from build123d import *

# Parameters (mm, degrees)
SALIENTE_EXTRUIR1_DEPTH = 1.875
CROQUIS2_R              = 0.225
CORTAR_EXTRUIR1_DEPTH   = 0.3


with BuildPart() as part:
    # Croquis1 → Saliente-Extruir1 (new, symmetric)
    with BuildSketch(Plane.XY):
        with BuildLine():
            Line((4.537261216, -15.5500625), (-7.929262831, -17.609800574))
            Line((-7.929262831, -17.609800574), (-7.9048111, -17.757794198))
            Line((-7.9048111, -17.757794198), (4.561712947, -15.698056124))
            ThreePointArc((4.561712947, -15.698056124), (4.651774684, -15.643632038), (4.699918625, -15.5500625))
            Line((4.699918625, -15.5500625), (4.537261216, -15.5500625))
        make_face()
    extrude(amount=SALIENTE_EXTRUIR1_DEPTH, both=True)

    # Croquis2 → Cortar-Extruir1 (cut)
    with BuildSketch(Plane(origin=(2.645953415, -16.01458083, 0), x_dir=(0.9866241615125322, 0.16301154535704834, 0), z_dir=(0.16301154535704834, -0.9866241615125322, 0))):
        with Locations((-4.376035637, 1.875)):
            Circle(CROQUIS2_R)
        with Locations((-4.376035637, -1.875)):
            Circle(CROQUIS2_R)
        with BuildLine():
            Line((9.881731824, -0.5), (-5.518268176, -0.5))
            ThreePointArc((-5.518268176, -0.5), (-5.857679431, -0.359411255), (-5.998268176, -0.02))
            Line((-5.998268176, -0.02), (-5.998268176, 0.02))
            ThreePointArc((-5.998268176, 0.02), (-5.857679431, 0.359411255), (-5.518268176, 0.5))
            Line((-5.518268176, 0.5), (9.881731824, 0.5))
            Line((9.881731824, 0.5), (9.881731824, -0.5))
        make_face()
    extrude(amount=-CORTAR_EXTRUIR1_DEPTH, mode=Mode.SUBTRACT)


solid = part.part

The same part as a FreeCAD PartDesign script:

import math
import FreeCAD as App
import Part
import Sketcher

V = App.Vector

doc = App.newDocument("Part")
body = doc.addObject("PartDesign::Body", "Body")

# Sketch on XY plane
sketch1 = body.newObject("Sketcher::SketchObject", "Sketch")
sketch1.AttachmentSupport = (doc.getObject("XY_Plane"), [""])
sketch1.MapMode = "FlatFace"
sketch1.addGeometry(Part.LineSegment(V(4.54, -15.55, 0), V(-7.93, -17.61, 0)), False)
sketch1.addGeometry(Part.LineSegment(V(-7.93, -17.61, 0), V(-7.9, -17.76, 0)), False)
sketch1.addGeometry(Part.LineSegment(V(-7.9, -17.76, 0), V(4.56, -15.7, 0)), False)
sketch1.addGeometry(Part.ArcOfCircle(Part.Circle(V(4.51, -15.51, 0), V(0, 0, 1), 0.19), math.radians(-75), math.radians(-11)), False)
sketch1.addGeometry(Part.LineSegment(V(4.7, -15.55, 0), V(4.54, -15.55, 0)), False)
sketch1.addConstraint(Sketcher.Constraint("Coincident", 0, 2, 1, 1))
sketch1.addConstraint(Sketcher.Constraint("Coincident", 1, 2, 2, 1))
sketch1.addConstraint(Sketcher.Constraint("Coincident", 2, 2, 3, 1))
sketch1.addConstraint(Sketcher.Constraint("Coincident", 3, 2, 4, 1))
sketch1.addConstraint(Sketcher.Constraint("Coincident", 4, 2, 0, 1))
sketch1.addConstraint(Sketcher.Constraint("Horizontal", 4))
sketch1.addConstraint(Sketcher.Constraint("Perpendicular", 0, 1))
sketch1.addConstraint(Sketcher.Constraint("Perpendicular", 1, 2))
sketch1.addConstraint(Sketcher.Constraint("Equal", 0, 2))
sketch1.addConstraint(Sketcher.Constraint("Distance", 1, 0.15))
sketch1.addConstraint(Sketcher.Constraint("Radius", 3, 0.193066))
sketch1.addConstraint(Sketcher.Constraint("DistanceY", 0, 2, -1, 1, 17.609801))
sketch1.addConstraint(Sketcher.Constraint("DistanceX", 4, 2, 4, 1, 0.162657))
sketch1.addConstraint(Sketcher.Constraint("DistanceX", -1, 1, 3, 3, 4.51067))
sketch1.addConstraint(Sketcher.Constraint("DistanceY", 3, 3, -1, 1, 15.51186))
sketch1.addConstraint(Sketcher.Constraint("DistanceX", 1, 2, -1, 1, 7.904811))
pad1 = body.newObject("PartDesign::Pad", "Pad")
pad1.Profile = sketch1
pad1.Length = 3.75
pad1.Midplane = True

# Sketch on an angled plane
sketch2 = body.newObject("Sketcher::SketchObject", "Sketch001")
sketch2.Placement = App.Placement(V(2.645953, -16.014581, 0), App.Rotation(V(0.986624162, 0.163011545, 0), V(0, 0, 1.000000001), V(0.163011545, -0.986624162, 0), "ZXY"))
sketch2.addGeometry(Part.Circle(V(-4.376, 1.875, 0), V(0, 0, 1), 0.225), False)
sketch2.addGeometry(Part.Circle(V(-4.376, -1.875, 0), V(0, 0, 1), 0.225), False)
sketch2.addGeometry(Part.LineSegment(V(-5.518, -0.5, 0), V(9.882, -0.5, 0)), False)
sketch2.addGeometry(Part.LineSegment(V(9.882, -0.5, 0), V(9.882, 0.5, 0)), False)
sketch2.addGeometry(Part.LineSegment(V(9.882, 0.5, 0), V(-5.518, 0.5, 0)), False)
sketch2.addGeometry(Part.ArcOfCircle(Part.Circle(V(-5.518, 0.02, 0), V(0, 0, 1), 0.48), math.radians(90), math.radians(180)), False)
sketch2.addGeometry(Part.LineSegment(V(-5.998, 0.02, 0), V(-5.998, -0.02, 0)), False)
sketch2.addGeometry(Part.ArcOfCircle(Part.Circle(V(-5.518, -0.02, 0), V(0, 0, 1), 0.48), math.radians(180), math.radians(270)), False)
sketch2.addConstraint(Sketcher.Constraint("Coincident", 2, 2, 3, 1))
sketch2.addConstraint(Sketcher.Constraint("Coincident", 3, 2, 4, 1))
sketch2.addConstraint(Sketcher.Constraint("Tangent", 4, 2, 5, 1))
sketch2.addConstraint(Sketcher.Constraint("Tangent", 5, 2, 6, 1))
sketch2.addConstraint(Sketcher.Constraint("Tangent", 6, 2, 7, 1))
sketch2.addConstraint(Sketcher.Constraint("Tangent", 7, 2, 2, 1))
sketch2.addConstraint(Sketcher.Constraint("Horizontal", 2))
sketch2.addConstraint(Sketcher.Constraint("Vertical", 3))
sketch2.addConstraint(Sketcher.Constraint("Horizontal", 4))
sketch2.addConstraint(Sketcher.Constraint("Vertical", 6))
sketch2.addConstraint(Sketcher.Constraint("Equal", 0, 1))
sketch2.addConstraint(Sketcher.Constraint("Equal", 5, 7))
sketch2.addConstraint(Sketcher.Constraint("Symmetric", 0, 3, 1, 3, -1))
sketch2.addConstraint(Sketcher.Constraint("Diameter", 0, 0.45))
sketch2.addConstraint(Sketcher.Constraint("DistanceY", 3, 1, 3, 2, 1.0))
sketch2.addConstraint(Sketcher.Constraint("Radius", 5, 0.48))
sketch2.addConstraint(Sketcher.Constraint("DistanceX", 2, 1, 2, 2, 15.4))
sketch2.addConstraint(Sketcher.Constraint("DistanceY", 2, 2, -1, 1, 0.5))
sketch2.addConstraint(Sketcher.Constraint("DistanceY", 1, 3, 0, 3, 3.75))
sketch2.addConstraint(Sketcher.Constraint("DistanceX", 5, 3, -1, 1, 5.518268))
sketch2.addConstraint(Sketcher.Constraint("DistanceX", 0, 3, -1, 1, 4.376036))
pocket1 = body.newObject("PartDesign::Pocket", "Pocket")
pocket1.Profile = sketch2
pocket1.Length = 0.3

doc.recompute()
